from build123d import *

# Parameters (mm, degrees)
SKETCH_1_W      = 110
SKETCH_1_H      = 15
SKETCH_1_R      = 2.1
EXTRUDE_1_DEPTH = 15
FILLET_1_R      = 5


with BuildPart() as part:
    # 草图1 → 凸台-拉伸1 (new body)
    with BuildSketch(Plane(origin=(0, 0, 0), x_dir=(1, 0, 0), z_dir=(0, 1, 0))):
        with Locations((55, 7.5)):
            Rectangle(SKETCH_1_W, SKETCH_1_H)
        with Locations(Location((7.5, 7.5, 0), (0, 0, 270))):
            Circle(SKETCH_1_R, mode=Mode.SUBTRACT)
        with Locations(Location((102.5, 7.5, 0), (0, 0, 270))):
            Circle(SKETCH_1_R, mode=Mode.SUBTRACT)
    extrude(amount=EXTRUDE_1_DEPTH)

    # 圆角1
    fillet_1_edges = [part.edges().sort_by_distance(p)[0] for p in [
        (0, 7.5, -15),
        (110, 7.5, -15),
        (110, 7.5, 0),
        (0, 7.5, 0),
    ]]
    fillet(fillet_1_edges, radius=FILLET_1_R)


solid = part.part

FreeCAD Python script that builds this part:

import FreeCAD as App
import Part
import Sketcher


def edges_at(feature, points):
    """Names of the edges that pass closest to the given points."""
    edges = feature.Shape.Edges
    near = lambda p: min(range(len(edges)), key=lambda i: edges[i].distToShape(Part.Vertex(*p))[0])
    return sorted({f"Edge{near(p) + 1}" for p in points})

doc = App.newDocument("Part")
body = doc.addObject("PartDesign::Body", "Body")

# Sketch on XZ plane
sketch1 = body.newObject("Sketcher::SketchObject", "Sketch")
sketch1.AttachmentSupport = (doc.getObject("XZ_Plane"), [""])
sketch1.MapMode = "FlatFace"
sketch1.addGeometry([
    Part.LineSegment(App.Vector(0, -15, 0), App.Vector(0, 0, 0)),  # 0
    Part.LineSegment(App.Vector(0, 0, 0), App.Vector(110, 0, 0)),  # 1
    Part.LineSegment(App.Vector(110, 0, 0), App.Vector(110, -15, 0)),  # 2
    Part.LineSegment(App.Vector(110, -15, 0), App.Vector(0, -15, 0)),  # 3
    Part.Circle(App.Vector(7.5, -7.5, 0), App.Vector(0, 0, 1), 2.1),  # 4
    Part.Circle(App.Vector(102.5, -7.5, 0), App.Vector(0, 0, 1), 2.1),  # 5
], False)
sketch1.addConstraint([
    Sketcher.Constraint("Coincident", 0, 2, 1, 1),
    Sketcher.Constraint("Coincident", 1, 2, 2, 1),
    Sketcher.Constraint("Coincident", 2, 2, 3, 1),
    Sketcher.Constraint("Coincident", 3, 2, 0, 1),
    Sketcher.Constraint("Vertical", 0),
    Sketcher.Constraint("Horizontal", 1),
    Sketcher.Constraint("Vertical", 2),
    Sketcher.Constraint("Horizontal", 3),
    Sketcher.Constraint("Coincident", 0, 2, -1, 1),
    Sketcher.Constraint("Equal", 4, 5),
    Sketcher.Constraint("Horizontal", 4, 3, 5, 3),
    Sketcher.Constraint("Diameter", 4, 4.2),
    Sketcher.Constraint("DistanceX", 1, 1, 1, 2, 110.0),
    Sketcher.Constraint("DistanceY", 0, 1, 0, 2, 15.0),
    Sketcher.Constraint("DistanceX", 4, 3, 5, 3, 95.0),
    Sketcher.Constraint("DistanceX", -1, 1, 4, 3, 7.5),
    Sketcher.Constraint("DistanceY", 4, 3, -1, 1, 7.5),
])
pad1 = body.newObject("PartDesign::Pad", "Pad")
pad1.Profile = sketch1
pad1.Length = 15
pad1.Reversed = True
doc.recompute()

fillet = body.newObject("PartDesign::Fillet", "Fillet")
fillet.Base = (pad1, edges_at(pad1, [
    (0, 7.5, -15),
    (110, 7.5, -15),
    (110, 7.5, 0),
    (0, 7.5, 0),
]))
fillet.Radius = 5

doc.recompute()
